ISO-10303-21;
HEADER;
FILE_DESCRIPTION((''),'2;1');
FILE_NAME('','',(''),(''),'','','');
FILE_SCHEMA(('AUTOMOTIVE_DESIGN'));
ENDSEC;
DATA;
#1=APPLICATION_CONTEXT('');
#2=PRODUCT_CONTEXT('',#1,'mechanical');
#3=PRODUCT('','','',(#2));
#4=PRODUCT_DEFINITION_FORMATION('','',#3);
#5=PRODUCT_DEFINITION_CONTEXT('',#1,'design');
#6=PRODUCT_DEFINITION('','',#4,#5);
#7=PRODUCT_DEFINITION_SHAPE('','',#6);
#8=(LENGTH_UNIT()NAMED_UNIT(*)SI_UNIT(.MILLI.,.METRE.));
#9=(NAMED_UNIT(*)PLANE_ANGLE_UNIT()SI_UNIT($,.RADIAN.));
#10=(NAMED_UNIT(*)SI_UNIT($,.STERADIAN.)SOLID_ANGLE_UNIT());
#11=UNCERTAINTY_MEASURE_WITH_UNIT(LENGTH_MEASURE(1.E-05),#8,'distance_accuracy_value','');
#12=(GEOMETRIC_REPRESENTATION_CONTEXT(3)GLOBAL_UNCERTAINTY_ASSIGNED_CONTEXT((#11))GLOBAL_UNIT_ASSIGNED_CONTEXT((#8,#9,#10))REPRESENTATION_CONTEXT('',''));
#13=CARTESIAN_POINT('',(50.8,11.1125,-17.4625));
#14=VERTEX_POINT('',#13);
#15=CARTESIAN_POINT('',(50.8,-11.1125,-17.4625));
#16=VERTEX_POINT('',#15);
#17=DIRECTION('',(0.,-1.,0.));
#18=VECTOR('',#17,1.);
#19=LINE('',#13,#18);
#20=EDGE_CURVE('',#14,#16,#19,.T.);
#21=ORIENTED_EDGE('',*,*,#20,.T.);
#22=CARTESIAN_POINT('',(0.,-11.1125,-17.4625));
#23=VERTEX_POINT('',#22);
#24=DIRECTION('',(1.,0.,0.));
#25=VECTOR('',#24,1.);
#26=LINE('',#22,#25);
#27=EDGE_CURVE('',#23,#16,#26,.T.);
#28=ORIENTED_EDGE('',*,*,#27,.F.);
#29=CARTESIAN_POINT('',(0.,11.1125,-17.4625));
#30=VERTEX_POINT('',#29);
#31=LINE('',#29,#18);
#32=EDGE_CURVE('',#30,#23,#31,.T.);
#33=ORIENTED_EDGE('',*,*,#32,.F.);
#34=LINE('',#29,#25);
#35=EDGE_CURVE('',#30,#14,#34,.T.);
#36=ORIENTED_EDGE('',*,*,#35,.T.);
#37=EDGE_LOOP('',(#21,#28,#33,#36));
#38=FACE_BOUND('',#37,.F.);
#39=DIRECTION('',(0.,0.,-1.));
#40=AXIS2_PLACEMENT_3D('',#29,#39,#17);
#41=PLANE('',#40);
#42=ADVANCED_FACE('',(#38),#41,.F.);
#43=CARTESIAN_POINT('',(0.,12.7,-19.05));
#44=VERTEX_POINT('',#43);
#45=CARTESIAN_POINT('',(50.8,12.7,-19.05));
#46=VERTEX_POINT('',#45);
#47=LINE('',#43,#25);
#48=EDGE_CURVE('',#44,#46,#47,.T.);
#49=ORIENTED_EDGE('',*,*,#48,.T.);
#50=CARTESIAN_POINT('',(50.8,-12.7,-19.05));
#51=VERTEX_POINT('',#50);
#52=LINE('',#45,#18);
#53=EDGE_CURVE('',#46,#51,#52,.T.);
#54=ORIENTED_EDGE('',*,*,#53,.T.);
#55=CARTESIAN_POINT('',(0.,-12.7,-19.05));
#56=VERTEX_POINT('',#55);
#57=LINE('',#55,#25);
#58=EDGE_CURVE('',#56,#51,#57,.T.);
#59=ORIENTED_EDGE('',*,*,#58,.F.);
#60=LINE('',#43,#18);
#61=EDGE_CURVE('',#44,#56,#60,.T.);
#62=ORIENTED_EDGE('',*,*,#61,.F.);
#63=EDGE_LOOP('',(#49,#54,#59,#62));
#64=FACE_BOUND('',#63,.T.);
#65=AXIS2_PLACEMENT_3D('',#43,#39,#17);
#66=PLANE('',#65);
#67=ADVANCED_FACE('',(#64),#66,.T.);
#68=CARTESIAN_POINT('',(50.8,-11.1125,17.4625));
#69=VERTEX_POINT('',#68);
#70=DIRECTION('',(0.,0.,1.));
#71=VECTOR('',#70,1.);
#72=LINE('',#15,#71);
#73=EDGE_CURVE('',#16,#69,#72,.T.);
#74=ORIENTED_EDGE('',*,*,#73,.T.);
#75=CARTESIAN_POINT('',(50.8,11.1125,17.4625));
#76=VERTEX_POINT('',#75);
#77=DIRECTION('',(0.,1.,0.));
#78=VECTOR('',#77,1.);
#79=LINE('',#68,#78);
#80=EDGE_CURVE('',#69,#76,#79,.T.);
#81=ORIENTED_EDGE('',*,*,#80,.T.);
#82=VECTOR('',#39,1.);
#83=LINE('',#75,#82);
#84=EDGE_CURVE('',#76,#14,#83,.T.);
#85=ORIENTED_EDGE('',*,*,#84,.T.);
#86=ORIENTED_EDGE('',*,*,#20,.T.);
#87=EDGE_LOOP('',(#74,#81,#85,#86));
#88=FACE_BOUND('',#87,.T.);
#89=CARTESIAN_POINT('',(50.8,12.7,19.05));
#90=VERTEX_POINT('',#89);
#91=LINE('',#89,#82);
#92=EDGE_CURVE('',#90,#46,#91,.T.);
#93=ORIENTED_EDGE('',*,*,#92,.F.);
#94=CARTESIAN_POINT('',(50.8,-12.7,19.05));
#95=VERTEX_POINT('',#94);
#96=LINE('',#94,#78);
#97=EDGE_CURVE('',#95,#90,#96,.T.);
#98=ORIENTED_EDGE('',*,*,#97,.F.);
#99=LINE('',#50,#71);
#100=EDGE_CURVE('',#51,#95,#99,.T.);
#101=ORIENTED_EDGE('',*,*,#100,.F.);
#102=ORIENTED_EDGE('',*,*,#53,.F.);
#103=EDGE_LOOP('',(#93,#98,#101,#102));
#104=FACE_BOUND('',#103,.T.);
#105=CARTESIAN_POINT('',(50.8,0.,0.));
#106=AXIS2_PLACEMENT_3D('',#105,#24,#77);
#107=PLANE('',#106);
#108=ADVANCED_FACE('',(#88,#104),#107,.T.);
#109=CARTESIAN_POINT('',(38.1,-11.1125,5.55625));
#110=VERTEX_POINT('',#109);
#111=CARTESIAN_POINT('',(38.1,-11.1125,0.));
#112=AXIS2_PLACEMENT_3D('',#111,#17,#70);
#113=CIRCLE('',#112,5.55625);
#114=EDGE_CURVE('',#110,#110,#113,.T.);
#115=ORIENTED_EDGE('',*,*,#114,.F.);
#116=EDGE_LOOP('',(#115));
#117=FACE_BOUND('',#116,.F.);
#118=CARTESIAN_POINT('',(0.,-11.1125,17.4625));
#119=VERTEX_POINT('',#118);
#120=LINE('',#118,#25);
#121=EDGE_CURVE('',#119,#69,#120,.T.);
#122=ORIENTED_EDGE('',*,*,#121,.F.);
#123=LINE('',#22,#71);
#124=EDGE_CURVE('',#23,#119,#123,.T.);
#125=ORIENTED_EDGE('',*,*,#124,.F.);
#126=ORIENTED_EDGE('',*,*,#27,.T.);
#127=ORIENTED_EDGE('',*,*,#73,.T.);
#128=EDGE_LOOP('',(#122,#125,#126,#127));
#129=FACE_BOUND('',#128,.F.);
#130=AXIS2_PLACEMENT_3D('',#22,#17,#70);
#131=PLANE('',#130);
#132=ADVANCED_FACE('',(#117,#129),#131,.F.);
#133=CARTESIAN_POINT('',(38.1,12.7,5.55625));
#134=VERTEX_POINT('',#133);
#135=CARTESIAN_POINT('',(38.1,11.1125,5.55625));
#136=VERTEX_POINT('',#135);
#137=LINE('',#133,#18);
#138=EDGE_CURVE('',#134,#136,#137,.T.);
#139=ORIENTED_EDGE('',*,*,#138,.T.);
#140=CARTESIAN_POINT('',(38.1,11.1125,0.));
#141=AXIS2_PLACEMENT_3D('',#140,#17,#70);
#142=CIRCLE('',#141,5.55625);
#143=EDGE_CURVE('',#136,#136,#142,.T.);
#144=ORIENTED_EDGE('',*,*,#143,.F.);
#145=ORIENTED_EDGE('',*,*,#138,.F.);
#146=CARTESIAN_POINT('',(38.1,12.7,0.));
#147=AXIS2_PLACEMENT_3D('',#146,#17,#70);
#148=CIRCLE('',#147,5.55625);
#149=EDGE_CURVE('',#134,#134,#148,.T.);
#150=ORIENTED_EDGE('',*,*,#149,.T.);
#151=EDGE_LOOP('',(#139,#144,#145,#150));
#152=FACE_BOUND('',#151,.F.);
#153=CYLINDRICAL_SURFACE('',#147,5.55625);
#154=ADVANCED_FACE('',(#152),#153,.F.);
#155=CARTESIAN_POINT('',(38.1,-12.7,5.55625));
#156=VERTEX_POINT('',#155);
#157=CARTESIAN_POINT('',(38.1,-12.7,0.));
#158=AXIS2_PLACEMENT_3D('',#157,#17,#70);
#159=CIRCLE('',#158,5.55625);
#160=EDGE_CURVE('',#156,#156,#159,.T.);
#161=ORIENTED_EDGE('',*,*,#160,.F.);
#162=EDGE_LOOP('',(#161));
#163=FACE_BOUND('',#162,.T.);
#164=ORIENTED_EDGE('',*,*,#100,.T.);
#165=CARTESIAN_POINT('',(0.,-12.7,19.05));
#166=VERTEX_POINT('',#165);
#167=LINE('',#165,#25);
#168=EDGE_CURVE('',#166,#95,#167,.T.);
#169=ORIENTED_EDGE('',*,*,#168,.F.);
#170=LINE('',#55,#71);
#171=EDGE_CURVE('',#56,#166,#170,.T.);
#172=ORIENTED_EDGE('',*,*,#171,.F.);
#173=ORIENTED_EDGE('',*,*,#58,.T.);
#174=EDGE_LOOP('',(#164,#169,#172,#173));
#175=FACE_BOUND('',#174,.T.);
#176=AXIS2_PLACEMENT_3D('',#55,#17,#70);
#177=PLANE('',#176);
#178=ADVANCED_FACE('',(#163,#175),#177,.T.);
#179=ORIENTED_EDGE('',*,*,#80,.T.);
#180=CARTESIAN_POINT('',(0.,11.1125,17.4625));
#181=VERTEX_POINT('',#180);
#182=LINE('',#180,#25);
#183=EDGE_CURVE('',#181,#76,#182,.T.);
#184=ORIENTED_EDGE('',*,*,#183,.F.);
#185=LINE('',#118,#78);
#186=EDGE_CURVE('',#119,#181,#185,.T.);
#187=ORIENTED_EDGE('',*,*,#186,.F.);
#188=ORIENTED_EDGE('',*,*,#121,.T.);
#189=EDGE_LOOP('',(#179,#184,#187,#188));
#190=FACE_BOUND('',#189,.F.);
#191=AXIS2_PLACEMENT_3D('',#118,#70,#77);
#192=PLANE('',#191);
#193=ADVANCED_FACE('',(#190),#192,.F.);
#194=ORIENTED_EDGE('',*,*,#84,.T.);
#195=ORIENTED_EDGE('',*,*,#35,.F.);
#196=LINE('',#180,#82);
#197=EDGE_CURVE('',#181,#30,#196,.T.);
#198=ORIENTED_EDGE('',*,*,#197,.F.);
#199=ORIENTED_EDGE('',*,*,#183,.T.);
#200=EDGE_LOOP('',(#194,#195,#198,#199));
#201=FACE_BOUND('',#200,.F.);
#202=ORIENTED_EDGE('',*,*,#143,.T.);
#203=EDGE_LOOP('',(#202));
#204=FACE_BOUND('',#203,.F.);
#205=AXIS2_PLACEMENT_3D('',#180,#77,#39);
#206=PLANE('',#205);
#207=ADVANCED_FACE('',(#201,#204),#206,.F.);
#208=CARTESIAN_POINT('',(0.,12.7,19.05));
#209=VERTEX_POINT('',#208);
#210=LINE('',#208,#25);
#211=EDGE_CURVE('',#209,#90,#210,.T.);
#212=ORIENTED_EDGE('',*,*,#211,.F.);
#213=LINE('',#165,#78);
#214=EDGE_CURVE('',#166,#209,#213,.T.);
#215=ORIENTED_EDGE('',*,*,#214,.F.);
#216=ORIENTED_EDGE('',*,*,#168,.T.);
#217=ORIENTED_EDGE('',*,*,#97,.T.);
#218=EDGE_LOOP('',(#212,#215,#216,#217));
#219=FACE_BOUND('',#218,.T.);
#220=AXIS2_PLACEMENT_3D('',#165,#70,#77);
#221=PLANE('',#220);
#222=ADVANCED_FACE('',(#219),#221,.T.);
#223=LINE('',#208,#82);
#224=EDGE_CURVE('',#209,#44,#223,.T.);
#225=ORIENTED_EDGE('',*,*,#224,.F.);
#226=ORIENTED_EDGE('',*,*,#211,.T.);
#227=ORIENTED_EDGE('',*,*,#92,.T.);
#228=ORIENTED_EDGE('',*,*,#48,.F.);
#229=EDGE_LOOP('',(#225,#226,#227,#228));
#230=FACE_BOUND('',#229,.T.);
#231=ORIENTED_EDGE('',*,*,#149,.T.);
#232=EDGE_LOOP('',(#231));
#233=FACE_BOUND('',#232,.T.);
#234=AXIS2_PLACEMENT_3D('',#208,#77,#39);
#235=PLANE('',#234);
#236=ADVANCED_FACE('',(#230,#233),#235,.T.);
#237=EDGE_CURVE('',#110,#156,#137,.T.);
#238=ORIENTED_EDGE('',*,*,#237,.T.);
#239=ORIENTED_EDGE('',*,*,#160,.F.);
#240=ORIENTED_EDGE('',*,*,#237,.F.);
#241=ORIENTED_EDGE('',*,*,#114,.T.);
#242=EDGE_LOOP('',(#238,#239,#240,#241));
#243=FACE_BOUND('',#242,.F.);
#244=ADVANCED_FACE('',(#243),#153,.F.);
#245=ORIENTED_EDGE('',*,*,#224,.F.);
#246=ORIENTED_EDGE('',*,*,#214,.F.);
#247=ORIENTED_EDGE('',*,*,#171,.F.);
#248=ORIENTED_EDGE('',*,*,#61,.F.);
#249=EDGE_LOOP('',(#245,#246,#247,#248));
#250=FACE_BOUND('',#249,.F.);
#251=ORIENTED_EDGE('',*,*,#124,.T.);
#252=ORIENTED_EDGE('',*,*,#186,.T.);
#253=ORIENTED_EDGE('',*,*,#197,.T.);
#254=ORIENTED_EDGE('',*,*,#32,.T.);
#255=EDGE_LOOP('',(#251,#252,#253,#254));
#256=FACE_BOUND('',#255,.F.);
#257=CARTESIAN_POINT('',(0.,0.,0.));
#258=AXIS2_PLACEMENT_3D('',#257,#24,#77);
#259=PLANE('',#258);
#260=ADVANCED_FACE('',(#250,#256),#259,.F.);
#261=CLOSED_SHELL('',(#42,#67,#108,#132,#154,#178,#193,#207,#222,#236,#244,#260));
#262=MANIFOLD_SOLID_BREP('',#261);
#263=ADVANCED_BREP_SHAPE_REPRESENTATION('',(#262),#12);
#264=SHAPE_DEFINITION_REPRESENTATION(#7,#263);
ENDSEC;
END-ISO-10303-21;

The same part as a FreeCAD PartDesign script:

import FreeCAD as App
import Part
import Sketcher
from FreeCAD import Vector
Q = App.Units.Quantity

doc = App.newDocument("Part")
body = doc.addObject("PartDesign::Body", "Body")

sketch1 = body.newObject("Sketcher::SketchObject", "Sketch")
sketch1.AttachmentSupport = (doc.getObject("YZ_Plane"), [""])
sketch1.MapMode = "FlatFace"
sketch1.addGeometry([
    Part.LineSegment(Vector(13, 19, 0), Vector(-13, 19, 0)),
    Part.LineSegment(Vector(-13, 19, 0), Vector(-13, -19, 0)),
    Part.LineSegment(Vector(-13, -19, 0), Vector(13, -19, 0)),
    Part.LineSegment(Vector(13, -19, 0), Vector(13, 19, 0)),
    Part.LineSegment(Vector(-11, -17, 0), Vector(-11, 17, 0)),
    Part.LineSegment(Vector(-11, 17, 0), Vector(11, 17, 0)),
    Part.LineSegment(Vector(11, 17, 0), Vector(11, -17, 0)),
    Part.LineSegment(Vector(11, -17, 0), Vector(-11, -17, 0)),
], False)
sketch1.addConstraint([
    Sketcher.Constraint("Coincident", 0, 2, 1, 1),
    Sketcher.Constraint("Coincident", 1, 2, 2, 1),
    Sketcher.Constraint("Coincident", 2, 2, 3, 1),
    Sketcher.Constraint("Coincident", 3, 2, 0, 1),
    Sketcher.Constraint("Coincident", 4, 2, 5, 1),
    Sketcher.Constraint("Coincident", 5, 2, 6, 1),
    Sketcher.Constraint("Coincident", 6, 2, 7, 1),
    Sketcher.Constraint("Coincident", 7, 2, 4, 1),
    Sketcher.Constraint("Horizontal", 0),
    Sketcher.Constraint("Vertical", 1),
    Sketcher.Constraint("Horizontal", 2),
    Sketcher.Constraint("Vertical", 3),
    Sketcher.Constraint("Vertical", 4),
    Sketcher.Constraint("Horizontal", 5),
    Sketcher.Constraint("Vertical", 6),
    Sketcher.Constraint("Horizontal", 7),
    Sketcher.Constraint("Symmetric", 0, 2, 2, 2, -1, 1),
    Sketcher.Constraint("Symmetric", 4, 2, 6, 2, -1, 1),
    Sketcher.Constraint("DistanceX", 0, 2, 0, 1, Q("1 in")),
    Sketcher.Constraint("DistanceY", 1, 2, 1, 1, Q("1.5 in")),
    Sketcher.Constraint("DistanceX", 0, 2, 4, 2, Q("0.0625 in")),
    Sketcher.Constraint("DistanceY", 4, 2, 0, 2, Q("0.0625 in")),
])
pad1 = body.newObject("PartDesign::Pad", "Pad")
pad1.Profile = sketch1
pad1.Length = Q("2 in")

sketch2 = body.newObject("Sketcher::SketchObject", "Sketch001")
sketch2.AttachmentSupport = (doc.getObject("XZ_Plane"), [""])
sketch2.MapMode = "FlatFace"
sketch2.AttachmentOffset = App.Placement(Vector(0, 0, -0.5 * 25.4), App.Rotation())
sketch2.addGeometry(Part.Circle(Vector(38, 0, 0), Vector(0, 0, 1), 6), False)
sketch2.addConstraint([
    Sketcher.Constraint("PointOnObject", 0, 3, -1),
    Sketcher.Constraint("Diameter", 0, Q("0.4375 in")),
    Sketcher.Constraint("DistanceX", -1, 1, 0, 3, Q("1.5 in")),
])
doc.recompute()
hole = body.newObject("PartDesign::Hole", "Hole")
hole.Profile = sketch2
hole.ThreadType = "None"
hole.Diameter = Q("0.4375 in")
hole.DepthType = "ThroughAll"
hole.Reversed = True

doc.recompute()
